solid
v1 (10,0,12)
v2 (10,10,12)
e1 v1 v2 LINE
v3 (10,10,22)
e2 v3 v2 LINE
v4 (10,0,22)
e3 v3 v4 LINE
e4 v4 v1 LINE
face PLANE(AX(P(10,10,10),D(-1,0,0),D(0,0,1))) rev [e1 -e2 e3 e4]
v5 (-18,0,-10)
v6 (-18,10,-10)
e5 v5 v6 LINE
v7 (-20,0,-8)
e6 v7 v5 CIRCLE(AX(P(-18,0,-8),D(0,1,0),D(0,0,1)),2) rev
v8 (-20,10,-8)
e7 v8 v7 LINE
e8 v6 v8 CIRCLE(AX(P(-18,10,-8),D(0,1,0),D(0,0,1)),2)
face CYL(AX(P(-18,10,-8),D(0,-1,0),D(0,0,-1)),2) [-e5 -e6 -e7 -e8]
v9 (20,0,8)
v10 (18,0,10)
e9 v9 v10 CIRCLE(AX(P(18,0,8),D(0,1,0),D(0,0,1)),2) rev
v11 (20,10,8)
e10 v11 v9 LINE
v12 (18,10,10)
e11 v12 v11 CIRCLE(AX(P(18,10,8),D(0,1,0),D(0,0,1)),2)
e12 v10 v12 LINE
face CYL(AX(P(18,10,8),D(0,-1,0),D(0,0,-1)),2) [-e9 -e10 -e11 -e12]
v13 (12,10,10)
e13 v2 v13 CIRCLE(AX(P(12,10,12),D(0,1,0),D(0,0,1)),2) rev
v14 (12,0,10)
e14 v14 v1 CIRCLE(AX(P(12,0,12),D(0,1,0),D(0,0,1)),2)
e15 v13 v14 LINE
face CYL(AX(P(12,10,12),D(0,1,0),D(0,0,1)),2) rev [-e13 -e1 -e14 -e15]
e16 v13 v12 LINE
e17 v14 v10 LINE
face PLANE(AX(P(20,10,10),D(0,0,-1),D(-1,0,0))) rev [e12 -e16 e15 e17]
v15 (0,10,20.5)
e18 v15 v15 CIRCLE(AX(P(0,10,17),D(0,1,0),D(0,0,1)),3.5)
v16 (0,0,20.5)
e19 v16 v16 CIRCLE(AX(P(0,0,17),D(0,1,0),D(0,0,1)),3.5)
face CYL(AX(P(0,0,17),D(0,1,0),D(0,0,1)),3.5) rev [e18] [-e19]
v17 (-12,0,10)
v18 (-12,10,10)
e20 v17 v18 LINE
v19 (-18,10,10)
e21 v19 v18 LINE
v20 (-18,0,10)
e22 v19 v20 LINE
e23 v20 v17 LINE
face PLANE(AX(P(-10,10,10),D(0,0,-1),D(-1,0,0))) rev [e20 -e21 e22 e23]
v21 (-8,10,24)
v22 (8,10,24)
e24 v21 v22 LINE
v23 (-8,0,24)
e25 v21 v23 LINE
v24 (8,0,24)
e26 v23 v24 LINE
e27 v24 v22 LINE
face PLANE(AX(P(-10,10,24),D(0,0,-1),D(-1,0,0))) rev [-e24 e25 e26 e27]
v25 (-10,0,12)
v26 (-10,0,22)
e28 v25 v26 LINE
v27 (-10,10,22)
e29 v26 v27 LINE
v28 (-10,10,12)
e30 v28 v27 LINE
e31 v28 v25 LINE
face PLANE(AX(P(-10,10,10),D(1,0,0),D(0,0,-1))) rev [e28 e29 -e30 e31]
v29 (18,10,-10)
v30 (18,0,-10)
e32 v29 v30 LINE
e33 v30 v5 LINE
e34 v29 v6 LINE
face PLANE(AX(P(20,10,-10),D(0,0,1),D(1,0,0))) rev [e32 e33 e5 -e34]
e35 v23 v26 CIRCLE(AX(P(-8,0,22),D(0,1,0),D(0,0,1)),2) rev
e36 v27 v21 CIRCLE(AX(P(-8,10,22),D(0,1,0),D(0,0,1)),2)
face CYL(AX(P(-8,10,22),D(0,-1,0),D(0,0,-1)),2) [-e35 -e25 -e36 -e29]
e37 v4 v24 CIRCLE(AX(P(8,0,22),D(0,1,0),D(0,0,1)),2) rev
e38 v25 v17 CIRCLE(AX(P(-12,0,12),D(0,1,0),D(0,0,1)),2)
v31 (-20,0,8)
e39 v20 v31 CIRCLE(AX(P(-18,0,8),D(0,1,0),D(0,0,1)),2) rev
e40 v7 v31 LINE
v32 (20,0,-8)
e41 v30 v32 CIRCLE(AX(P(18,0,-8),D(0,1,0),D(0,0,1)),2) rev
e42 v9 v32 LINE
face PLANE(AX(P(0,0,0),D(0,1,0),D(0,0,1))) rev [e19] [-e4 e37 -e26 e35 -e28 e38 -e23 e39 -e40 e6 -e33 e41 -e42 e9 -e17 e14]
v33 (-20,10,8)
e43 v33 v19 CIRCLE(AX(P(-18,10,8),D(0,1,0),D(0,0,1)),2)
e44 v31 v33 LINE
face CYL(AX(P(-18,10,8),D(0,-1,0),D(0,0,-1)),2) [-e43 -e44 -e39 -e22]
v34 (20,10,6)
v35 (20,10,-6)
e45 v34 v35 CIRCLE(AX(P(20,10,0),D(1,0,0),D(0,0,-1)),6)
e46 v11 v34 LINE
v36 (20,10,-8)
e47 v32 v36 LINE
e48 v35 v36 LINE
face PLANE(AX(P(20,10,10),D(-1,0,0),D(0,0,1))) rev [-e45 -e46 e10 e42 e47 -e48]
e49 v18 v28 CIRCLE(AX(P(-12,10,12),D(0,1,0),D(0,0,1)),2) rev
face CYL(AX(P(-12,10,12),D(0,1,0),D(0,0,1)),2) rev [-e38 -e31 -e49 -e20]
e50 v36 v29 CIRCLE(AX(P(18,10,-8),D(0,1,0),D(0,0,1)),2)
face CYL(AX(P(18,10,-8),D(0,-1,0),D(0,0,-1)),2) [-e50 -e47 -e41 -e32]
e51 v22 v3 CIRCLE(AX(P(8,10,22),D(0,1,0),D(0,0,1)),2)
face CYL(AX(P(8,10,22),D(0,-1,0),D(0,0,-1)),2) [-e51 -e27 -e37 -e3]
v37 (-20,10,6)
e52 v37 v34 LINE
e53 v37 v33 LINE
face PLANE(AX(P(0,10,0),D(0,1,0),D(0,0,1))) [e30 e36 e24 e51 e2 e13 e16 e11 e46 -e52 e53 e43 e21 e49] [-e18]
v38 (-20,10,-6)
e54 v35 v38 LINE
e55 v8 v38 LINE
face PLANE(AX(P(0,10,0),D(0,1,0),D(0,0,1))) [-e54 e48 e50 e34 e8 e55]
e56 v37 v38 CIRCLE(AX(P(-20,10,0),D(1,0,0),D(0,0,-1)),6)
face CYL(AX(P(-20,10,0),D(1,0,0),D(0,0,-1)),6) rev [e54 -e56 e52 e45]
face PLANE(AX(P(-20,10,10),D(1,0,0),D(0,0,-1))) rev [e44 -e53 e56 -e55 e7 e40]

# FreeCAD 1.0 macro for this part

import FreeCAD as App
import Part
import Sketcher
from FreeCAD import Vector
Q = App.Units.Quantity


def edges_at(feature, points):
    """Names of the edges that pass closest to the given points."""
    edges = feature.Shape.Edges
    near = lambda p: min(range(len(edges)), key=lambda i: edges[i].distToShape(Part.Vertex(*p))[0])
    return sorted({f"Edge{near(p) + 1}" for p in points})

doc = App.newDocument("Part")
params = doc.addObject("Spreadsheet::Sheet", "Params")
for row, (alias, value) in enumerate([
    ("sketch1_width", "10 mm"),
    ("sketch1_width2", "20 mm"),
    ("sketch1_height", "14 mm"),
    ("pad1_length", "10 mm"),
    ("sketch2_diameter", "7 mm"),
    ("pocket1_length", "10 mm"),
    ("sketch3_diameter", "12 mm"),
    ("fillet_radius", "2 mm"),
], start=1):
    params.set(f"A{row}", alias)
    params.set(f"B{row}", "=" + value)
    params.setAlias(f"B{row}", alias)

body = doc.addObject("PartDesign::Body", "Body")

# Sketch on XZ plane
sketch1 = doc.addObject("Sketcher::SketchObject", "Sketch")
body.addObject(sketch1)
sketch1.AttachmentSupport = (doc.XZ_Plane, [""])
sketch1.MapMode = "FlatFace"
sketch1.addGeometry([
    Part.LineSegment(Vector(-20, 10, 0), Vector(-10, 10, 0)),  # 0
    Part.LineSegment(Vector(-10, 10, 0), Vector(-10, 24, 0)),  # 1
    Part.LineSegment(Vector(-10, 24, 0), Vector(10, 24, 0)),  # 2
    Part.LineSegment(Vector(10, 24, 0), Vector(10, 10, 0)),  # 3
    Part.LineSegment(Vector(10, 10, 0), Vector(20, 10, 0)),  # 4
    Part.LineSegment(Vector(20, 10, 0), Vector(20, -10, 0)),  # 5
    Part.LineSegment(Vector(20, -10, 0), Vector(-20, -10, 0)),  # 6
    Part.LineSegment(Vector(-20, -10, 0), Vector(-20, 10, 0)),  # 7
], False)
sketch1.addConstraint([
    Sketcher.Constraint("Coincident", 0, 2, 1, 1),
    Sketcher.Constraint("Coincident", 1, 2, 2, 1),
    Sketcher.Constraint("Coincident", 2, 2, 3, 1),
    Sketcher.Constraint("Coincident", 3, 2, 4, 1),
    Sketcher.Constraint("Coincident", 4, 2, 5, 1),
    Sketcher.Constraint("Coincident", 5, 2, 6, 1),
    Sketcher.Constraint("Coincident", 6, 2, 7, 1),
    Sketcher.Constraint("Coincident", 7, 2, 0, 1),
    Sketcher.Constraint("Horizontal", 0),
    Sketcher.Constraint("Vertical", 1),
    Sketcher.Constraint("Horizontal", 2),
    Sketcher.Constraint("Vertical", 3),
    Sketcher.Constraint("Horizontal", 4),
    Sketcher.Constraint("Vertical", 5),
    Sketcher.Constraint("Horizontal", 6),
    Sketcher.Constraint("Vertical", 7),
    Sketcher.Constraint("Symmetric", 4, 2, 6, 2, -1, 1),
    Sketcher.Constraint("Symmetric", 0, 2, 3, 2, -2),
    Sketcher.Constraint("Equal", 2, 5),
    Sketcher.Constraint("DistanceX", 0, 1, 0, 2, Q("10 mm")),
    Sketcher.Constraint("DistanceX", 2, 1, 2, 2, Q("20 mm")),
    Sketcher.Constraint("DistanceY", 1, 1, 1, 2, Q("14 mm")),
])
sketch1.setExpression("Constraints[19]", "Params.sketch1_width")
sketch1.setExpression("Constraints[20]", "Params.sketch1_width2")
sketch1.setExpression("Constraints[21]", "Params.sketch1_height")
pad1 = doc.addObject("PartDesign::Pad", "Pad")
body.addObject(pad1)
pad1.Profile = sketch1
pad1.setExpression("Length", "Params.pad1_length")
pad1.Reversed = True

# Sketch on XZ plane
sketch2 = doc.addObject("Sketcher::SketchObject", "Sketch001")
body.addObject(sketch2)
sketch2.AttachmentSupport = (doc.XZ_Plane, [""])
sketch2.MapMode = "FlatFace"
sketch2.AttachmentOffset = App.Placement(Vector(0, 0, -10), App.Rotation())
sketch2.addGeometry(Part.Circle(Vector(0, 17, 0), Vector(0, 0, 1), 3.5), False)
sketch2.addConstraint([
    Sketcher.Constraint("PointOnObject", 0, 3, -2),
    Sketcher.Constraint("Diameter", 0, Q("7 mm")),
    Sketcher.Constraint("DistanceY", -1, 1, 0, 3, Q("17 mm")),
])
sketch2.setExpression("Constraints[1]", "Params.sketch2_diameter")
pocket1 = doc.addObject("PartDesign::Pocket", "Pocket")
body.addObject(pocket1)
pocket1.Profile = sketch2
pocket1.setExpression("Length", "Params.pocket1_length")
pocket1.Reversed = True

# Sketch on YZ plane
sketch3 = doc.addObject("Sketcher::SketchObject", "Sketch002")
body.addObject(sketch3)
sketch3.AttachmentSupport = (doc.YZ_Plane, [""])
sketch3.MapMode = "FlatFace"
sketch3.AttachmentOffset = App.Placement(Vector(0, 0, 20), App.Rotation())
sketch3.addGeometry(Part.Circle(Vector(10, 0, 0), Vector(0, 0, 1), 6), False)
sketch3.addConstraint([
    Sketcher.Constraint("PointOnObject", 0, 3, -1),
    Sketcher.Constraint("Diameter", 0, Q("12 mm")),
    Sketcher.Constraint("DistanceX", -1, 1, 0, 3, Q("10 mm")),
])
sketch3.setExpression("Constraints[1]", "Params.sketch3_diameter")
pocket2 = doc.addObject("PartDesign::Pocket", "Pocket001")
body.addObject(pocket2)
pocket2.Profile = sketch3
pocket2.Type = "ThroughAll"
doc.recompute()

fillet = doc.addObject("PartDesign::Fillet", "Fillet")
body.addObject(fillet)
fillet.Base = (pocket2, edges_at(pocket2, [
    (-20, 5, -10),
    (20, 5, -10),
    (20, 5, 10),
    (10, 5, 10),
    (10, 5, 24),
    (-10, 5, 24),
    (-10, 5, 10),
    (-20, 5, 10),
]))
fillet.setExpression("Radius", "Params.fillet_radius")

doc.recompute()
